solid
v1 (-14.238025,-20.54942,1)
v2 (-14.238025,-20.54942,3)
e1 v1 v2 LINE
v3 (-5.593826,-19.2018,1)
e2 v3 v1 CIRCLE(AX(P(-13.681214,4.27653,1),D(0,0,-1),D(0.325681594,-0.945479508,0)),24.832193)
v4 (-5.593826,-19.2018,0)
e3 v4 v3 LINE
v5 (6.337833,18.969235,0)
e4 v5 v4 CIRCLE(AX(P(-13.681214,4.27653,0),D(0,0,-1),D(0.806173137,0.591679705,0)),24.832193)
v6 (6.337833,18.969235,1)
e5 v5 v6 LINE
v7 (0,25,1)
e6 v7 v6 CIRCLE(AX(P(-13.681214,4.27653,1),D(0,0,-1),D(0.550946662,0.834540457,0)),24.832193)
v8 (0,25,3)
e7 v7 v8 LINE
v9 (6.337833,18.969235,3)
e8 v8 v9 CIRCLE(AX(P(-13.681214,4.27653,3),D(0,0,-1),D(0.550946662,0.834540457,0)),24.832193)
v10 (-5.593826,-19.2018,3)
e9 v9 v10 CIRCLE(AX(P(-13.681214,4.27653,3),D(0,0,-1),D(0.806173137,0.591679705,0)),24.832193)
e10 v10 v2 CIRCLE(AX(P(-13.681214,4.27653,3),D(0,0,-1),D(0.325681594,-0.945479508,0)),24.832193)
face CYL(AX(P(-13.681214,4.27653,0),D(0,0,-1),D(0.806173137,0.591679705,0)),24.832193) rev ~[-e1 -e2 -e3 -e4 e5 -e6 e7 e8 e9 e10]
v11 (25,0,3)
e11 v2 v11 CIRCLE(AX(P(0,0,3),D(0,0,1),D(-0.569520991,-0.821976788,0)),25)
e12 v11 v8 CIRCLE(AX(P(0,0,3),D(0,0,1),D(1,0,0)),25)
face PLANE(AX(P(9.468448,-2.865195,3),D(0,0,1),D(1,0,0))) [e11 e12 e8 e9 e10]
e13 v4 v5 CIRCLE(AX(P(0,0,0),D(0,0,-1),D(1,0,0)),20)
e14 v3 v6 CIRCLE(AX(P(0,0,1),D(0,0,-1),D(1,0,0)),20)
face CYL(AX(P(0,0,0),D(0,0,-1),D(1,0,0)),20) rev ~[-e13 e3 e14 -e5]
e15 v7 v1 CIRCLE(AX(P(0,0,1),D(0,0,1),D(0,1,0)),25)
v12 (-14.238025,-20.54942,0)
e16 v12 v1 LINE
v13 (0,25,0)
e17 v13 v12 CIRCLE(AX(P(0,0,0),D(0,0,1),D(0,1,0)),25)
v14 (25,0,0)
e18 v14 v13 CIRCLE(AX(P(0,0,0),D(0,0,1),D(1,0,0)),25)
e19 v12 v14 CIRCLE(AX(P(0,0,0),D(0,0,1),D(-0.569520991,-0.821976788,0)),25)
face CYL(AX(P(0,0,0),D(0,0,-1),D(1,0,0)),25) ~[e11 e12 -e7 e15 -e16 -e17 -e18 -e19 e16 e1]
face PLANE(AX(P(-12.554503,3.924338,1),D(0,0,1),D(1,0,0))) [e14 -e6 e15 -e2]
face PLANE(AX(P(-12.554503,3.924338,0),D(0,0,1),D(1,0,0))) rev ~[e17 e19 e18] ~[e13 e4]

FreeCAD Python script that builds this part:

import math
import FreeCAD as App
import Part
import Sketcher

doc = App.newDocument("Part")
body = doc.addObject("PartDesign::Body", "Body")

sketch1 = body.newObject("Sketcher::SketchObject", "Sketch")
sketch1.AttachmentSupport = (doc.getObject("XY_Plane"), [""])
sketch1.MapMode = "FlatFace"
sketch1.addGeometry([
    Part.ArcOfCircle(Part.Circle(App.Vector(0, 0, 0), App.Vector(0, 0, 1), 25), math.radians(90), math.radians(235)),
    Part.ArcOfCircle(Part.Circle(App.Vector(0, 0, 0), App.Vector(0, 0, 1), 25), math.radians(-125), math.radians(0)),
    Part.ArcOfCircle(Part.Circle(App.Vector(0, 0, 0), App.Vector(0, 0, 1), 25), math.radians(0), math.radians(90)),
    Part.ArcOfCircle(Part.Circle(App.Vector(0, 0, 0), App.Vector(0, 0, 1), 20), math.radians(72), math.radians(254)),
    Part.ArcOfCircle(Part.Circle(App.Vector(-14, 4, 0), App.Vector(0, 0, 1), 25), math.radians(-71), math.radians(36)),
], False)
sketch1.addConstraint([
    Sketcher.Constraint("Tangent", 0, 2, 1, 1),
    Sketcher.Constraint("Tangent", 1, 2, 2, 1),
    Sketcher.Constraint("Tangent", 2, 2, 0, 1),
    Sketcher.Constraint("Coincident", 3, 1, 4, 2),
    Sketcher.Constraint("Coincident", 4, 1, 3, 2),
    Sketcher.Constraint("Coincident", 0, 3, -1, 1),
    Sketcher.Constraint("Coincident", 3, 3, -1, 1),
    Sketcher.Constraint("PointOnObject", 1, 2, -1),
    Sketcher.Constraint("PointOnObject", 2, 2, -2),
    Sketcher.Constraint("Radius", 0, 25.0),
    Sketcher.Constraint("Radius", 3, 20.0),
    Sketcher.Constraint("Radius", 4, 24.832193),
    Sketcher.Constraint("DistanceY", 4, 1, -1, 1, 19.2018),
    Sketcher.Constraint("DistanceX", 0, 2, 4, 1, 8.644199),
    Sketcher.Constraint("DistanceY", -1, 1, 4, 3, 4.27653),
])
pad1 = body.newObject("PartDesign::Pad", "Pad")
pad1.Profile = sketch1
pad1.Length = 1

sketch2 = body.newObject("Sketcher::SketchObject", "Sketch001")
sketch2.AttachmentSupport = (doc.getObject("XY_Plane"), [""])
sketch2.MapMode = "FlatFace"
sketch2.addGeometry([
    Part.ArcOfCircle(Part.Circle(App.Vector(-14, 4, 0), App.Vector(0, 0, 1), 25), math.radians(-71), math.radians(36)),
    Part.ArcOfCircle(Part.Circle(App.Vector(-14, 4, 0), App.Vector(0, 0, 1), 25), math.radians(-91), math.radians(-71)),
    Part.ArcOfCircle(Part.Circle(App.Vector(0, 0, 0), App.Vector(0, 0, 1), 25), math.radians(-125), math.radians(0)),
    Part.ArcOfCircle(Part.Circle(App.Vector(0, 0, 0), App.Vector(0, 0, 1), 25), math.radians(0), math.radians(90)),
    Part.ArcOfCircle(Part.Circle(App.Vector(-14, 4, 0), App.Vector(0, 0, 1), 25), math.radians(36), math.radians(57)),
], False)
sketch2.addConstraint([
    Sketcher.Constraint("Tangent", 0, 1, 1, 2),
    Sketcher.Constraint("Coincident", 1, 1, 2, 1),
    Sketcher.Constraint("Tangent", 2, 2, 3, 1),
    Sketcher.Constraint("Coincident", 3, 2, 4, 2),
    Sketcher.Constraint("Tangent", 4, 1, 0, 2),
    Sketcher.Constraint("Coincident", 2, 3, -1, 1),
    Sketcher.Constraint("Equal", 0, 1),
    Sketcher.Constraint("Equal", 2, 3),
    Sketcher.Constraint("Equal", 1, 4),
    Sketcher.Constraint("PointOnObject", 2, 2, -1),
    Sketcher.Constraint("PointOnObject", 3, 2, -2),
    Sketcher.Constraint("Radius", 2, 25.0),
    Sketcher.Constraint("Radius", 0, 24.832193),
    Sketcher.Constraint("DistanceY", 0, 1, -1, 1, 19.2018),
    Sketcher.Constraint("DistanceX", 1, 1, 0, 1, 8.644199),
    Sketcher.Constraint("DistanceX", -1, 1, 4, 1, 6.337833),
])
pad2 = body.newObject("PartDesign::Pad", "Pad001")
pad2.Profile = sketch2
pad2.Length = 3

doc.recompute()
